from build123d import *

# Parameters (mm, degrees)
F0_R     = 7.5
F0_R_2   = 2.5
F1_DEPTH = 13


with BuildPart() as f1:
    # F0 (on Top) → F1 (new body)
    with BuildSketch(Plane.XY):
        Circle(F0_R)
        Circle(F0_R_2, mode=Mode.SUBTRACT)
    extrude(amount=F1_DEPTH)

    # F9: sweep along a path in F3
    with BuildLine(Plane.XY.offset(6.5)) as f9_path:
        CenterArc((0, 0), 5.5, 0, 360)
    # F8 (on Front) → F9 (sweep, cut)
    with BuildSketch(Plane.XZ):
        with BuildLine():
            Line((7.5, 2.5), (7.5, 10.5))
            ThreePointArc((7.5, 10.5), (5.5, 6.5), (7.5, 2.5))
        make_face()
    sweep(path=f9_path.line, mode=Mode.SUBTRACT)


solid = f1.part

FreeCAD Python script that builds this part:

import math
import FreeCAD as App
import Part
import Sketcher
from FreeCAD import Vector
Q = App.Units.Quantity

doc = App.newDocument("Part")
params = doc.addObject("Spreadsheet::Sheet", "Params")
for row, (alias, value) in enumerate([
    ("sketch1_diameter", "15 mm"),
    ("sketch1_diameter2", "5 mm"),
    ("pad1_length", "13 mm"),
    ("sketch2_radius", "5 mm"),
    ("sketch2_height", "8 mm"),
    ("sketch3_diameter", "11 mm"),
], start=1):
    params.set(f"A{row}", alias)
    params.set(f"B{row}", "=" + value)
    params.setAlias(f"B{row}", alias)

body = doc.addObject("PartDesign::Body", "Body")

# Sketch on XY plane
sketch1 = doc.addObject("Sketcher::SketchObject", "Sketch")
body.addObject(sketch1)
sketch1.AttachmentSupport = (doc.XY_Plane, [""])
sketch1.MapMode = "FlatFace"
sketch1.addGeometry([
    Part.Circle(Vector(0, 0, 0), Vector(0, 0, 1), 7.5),
    Part.Circle(Vector(0, 0, 0), Vector(0, 0, 1), 2.5),
], False)
sketch1.addConstraint([
    Sketcher.Constraint("Coincident", 0, 3, -1, 1),
    Sketcher.Constraint("Coincident", 1, 3, -1, 1),
    Sketcher.Constraint("Diameter", 0, Q("15 mm")),
    Sketcher.Constraint("Diameter", 1, Q("5 mm")),
])
sketch1.setExpression("Constraints[2]", "Params.sketch1_diameter")
sketch1.setExpression("Constraints[3]", "Params.sketch1_diameter2")
pad1 = doc.addObject("PartDesign::Pad", "Pad")
body.addObject(pad1)
pad1.Profile = sketch1
pad1.setExpression("Length", "Params.pad1_length")

# Sketch on XZ plane
sketch2 = doc.addObject("Sketcher::SketchObject", "Sketch001")
body.addObject(sketch2)
sketch2.AttachmentSupport = (doc.XZ_Plane, [""])
sketch2.MapMode = "FlatFace"
sketch2.addGeometry([
    Part.LineSegment(Vector(8, 2, 0), Vector(8, 10, 0)),
    Part.ArcOfCircle(Part.Circle(Vector(10, 6, 0), Vector(0, 0, 1), 5), math.radians(127), math.radians(233)),
], False)
sketch2.addConstraint([
    Sketcher.Constraint("Coincident", 0, 1, 1, 2),
    Sketcher.Constraint("Coincident", 1, 1, 0, 2),
    Sketcher.Constraint("Vertical", 0),
    Sketcher.Constraint("Radius", 1, Q("5 mm")),
    Sketcher.Constraint("DistanceY", 0, 1, 0, 2, Q("8 mm")),
    Sketcher.Constraint("DistanceX", -1, 1, 1, 3, Q("10.5 mm")),
    Sketcher.Constraint("DistanceY", -1, 1, 1, 3, Q("6.5 mm")),
])
sketch2.setExpression("Constraints[3]", "Params.sketch2_radius")
sketch2.setExpression("Constraints[4]", "Params.sketch2_height")

# Sketch on XY plane
sketch3 = doc.addObject("Sketcher::SketchObject", "Sketch002")
body.addObject(sketch3)
sketch3.AttachmentSupport = (doc.XY_Plane, [""])
sketch3.MapMode = "FlatFace"
sketch3.AttachmentOffset = App.Placement(Vector(0, 0, 6.5), App.Rotation())
sketch3.addGeometry(Part.Circle(Vector(0, 0, 0), Vector(0, 0, 1), 6), False)
sketch3.addConstraint([
    Sketcher.Constraint("Coincident", 0, 3, -1, 1),
    Sketcher.Constraint("Diameter", 0, Q("11 mm")),
])
sketch3.setExpression("Constraints[1]", "Params.sketch3_diameter")
doc.recompute()

subtractivepipe = doc.addObject("PartDesign::SubtractivePipe", "SubtractivePipe")
body.addObject(subtractivepipe)
subtractivepipe.Profile = sketch2
subtractivepipe.Spine = (sketch3, ["Edge1"])

doc.recompute()
